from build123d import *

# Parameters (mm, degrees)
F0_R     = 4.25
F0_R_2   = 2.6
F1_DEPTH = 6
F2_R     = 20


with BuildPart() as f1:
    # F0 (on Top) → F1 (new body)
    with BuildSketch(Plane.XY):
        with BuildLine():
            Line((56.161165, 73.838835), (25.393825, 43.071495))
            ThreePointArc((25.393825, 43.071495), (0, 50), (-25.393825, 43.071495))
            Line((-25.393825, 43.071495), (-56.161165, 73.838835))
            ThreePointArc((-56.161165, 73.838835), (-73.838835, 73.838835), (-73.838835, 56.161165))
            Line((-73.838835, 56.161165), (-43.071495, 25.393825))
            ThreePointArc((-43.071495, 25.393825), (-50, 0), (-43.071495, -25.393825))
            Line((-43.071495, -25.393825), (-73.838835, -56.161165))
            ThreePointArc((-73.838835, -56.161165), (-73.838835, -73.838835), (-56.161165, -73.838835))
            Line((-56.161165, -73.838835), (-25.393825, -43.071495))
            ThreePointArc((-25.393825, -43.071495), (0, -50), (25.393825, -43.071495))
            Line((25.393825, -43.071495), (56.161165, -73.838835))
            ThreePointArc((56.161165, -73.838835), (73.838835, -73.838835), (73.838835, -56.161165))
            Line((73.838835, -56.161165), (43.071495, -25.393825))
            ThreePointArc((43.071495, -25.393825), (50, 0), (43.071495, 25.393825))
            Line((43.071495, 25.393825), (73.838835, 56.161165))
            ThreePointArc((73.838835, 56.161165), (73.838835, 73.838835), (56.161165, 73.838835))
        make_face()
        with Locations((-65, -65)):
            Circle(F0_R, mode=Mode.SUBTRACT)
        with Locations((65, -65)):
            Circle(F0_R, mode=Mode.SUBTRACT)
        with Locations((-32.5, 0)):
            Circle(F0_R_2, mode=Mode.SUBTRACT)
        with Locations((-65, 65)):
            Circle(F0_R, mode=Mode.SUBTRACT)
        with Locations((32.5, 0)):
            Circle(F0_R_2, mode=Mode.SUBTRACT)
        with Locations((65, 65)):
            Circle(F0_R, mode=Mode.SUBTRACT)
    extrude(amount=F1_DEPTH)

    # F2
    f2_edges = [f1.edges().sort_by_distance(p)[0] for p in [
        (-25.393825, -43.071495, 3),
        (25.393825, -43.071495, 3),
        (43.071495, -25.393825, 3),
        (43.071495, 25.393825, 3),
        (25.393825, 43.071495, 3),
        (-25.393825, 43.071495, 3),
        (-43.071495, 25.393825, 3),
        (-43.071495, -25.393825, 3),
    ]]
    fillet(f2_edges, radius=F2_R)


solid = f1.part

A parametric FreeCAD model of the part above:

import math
import FreeCAD as App
import Part
import Sketcher

V = App.Vector


def edges_at(feature, points):
    """Names of the edges that pass closest to the given points."""
    edges = feature.Shape.Edges
    near = lambda p: min(range(len(edges)), key=lambda i: edges[i].distToShape(Part.Vertex(*p))[0])
    return sorted({f"Edge{near(p) + 1}" for p in points})

doc = App.newDocument("Part")
body = doc.addObject("PartDesign::Body", "Body")

# Sketch on XY plane
sketch1 = doc.addObject("Sketcher::SketchObject", "Sketch")
body.addObject(sketch1)
sketch1.AttachmentSupport = (doc.XY_Plane, [""])
sketch1.MapMode = "FlatFace"
sketch1.addGeometry(Part.LineSegment(V(56.161165, 73.838835, 0), V(25.393825, 43.071495, 0)), False)
sketch1.addGeometry(Part.ArcOfCircle(Part.Circle(V(0, -0.000002, 0), V(0, 0, 1), 50.000002), math.radians(59.477514), math.radians(120.522486)), False)
sketch1.addGeometry(Part.LineSegment(V(-25.393825, 43.071495, 0), V(-56.161165, 73.838835, 0)), False)
sketch1.addGeometry(Part.ArcOfCircle(Part.Circle(V(-65, 65, 0), V(0, 0, 1), 12.5), math.radians(45), math.radians(225)), False)
sketch1.addGeometry(Part.LineSegment(V(-73.838835, 56.161165, 0), V(-43.071495, 25.393825, 0)), False)
sketch1.addGeometry(Part.ArcOfCircle(Part.Circle(V(0.000002, 0, 0), V(0, 0, 1), 50.000002), math.radians(149.477514), math.radians(210.522486)), False)
sketch1.addGeometry(Part.LineSegment(V(-43.071495, -25.393825, 0), V(-73.838835, -56.161165, 0)), False)
sketch1.addGeometry(Part.ArcOfCircle(Part.Circle(V(-65, -65, 0), V(0, 0, 1), 12.5), math.radians(135), math.radians(315)), False)
sketch1.addGeometry(Part.LineSegment(V(-56.161165, -73.838835, 0), V(-25.393825, -43.071495, 0)), False)
sketch1.addGeometry(Part.ArcOfCircle(Part.Circle(V(0, 0.000002, 0), V(0, 0, 1), 50.000002), math.radians(-120.522486), math.radians(-59.477514)), False)
sketch1.addGeometry(Part.LineSegment(V(25.393825, -43.071495, 0), V(56.161165, -73.838835, 0)), False)
sketch1.addGeometry(Part.ArcOfCircle(Part.Circle(V(65, -65, 0), V(0, 0, 1), 12.5), math.radians(-135), math.radians(45)), False)
sketch1.addGeometry(Part.LineSegment(V(73.838835, -56.161165, 0), V(43.071495, -25.393825, 0)), False)
sketch1.addGeometry(Part.ArcOfCircle(Part.Circle(V(-0.000002, 0, 0), V(0, 0, 1), 50.000002), math.radians(-30.522486), math.radians(30.522486)), False)
sketch1.addGeometry(Part.LineSegment(V(43.071495, 25.393825, 0), V(73.838835, 56.161165, 0)), False)
sketch1.addGeometry(Part.ArcOfCircle(Part.Circle(V(65, 65, 0), V(0, 0, 1), 12.5), math.radians(-45), math.radians(135)), False)
sketch1.addGeometry(Part.Circle(V(-65, -65, 0), V(0, 0, 1), 4.25), False)
sketch1.addGeometry(Part.Circle(V(65, -65, 0), V(0, 0, 1), 4.25), False)
sketch1.addGeometry(Part.Circle(V(-32.5, 0, 0), V(0, 0, 1), 2.6), False)
sketch1.addGeometry(Part.Circle(V(-65, 65, 0), V(0, 0, 1), 4.25), False)
sketch1.addGeometry(Part.Circle(V(32.5, 0, 0), V(0, 0, 1), 2.6), False)
sketch1.addGeometry(Part.Circle(V(65, 65, 0), V(0, 0, 1), 4.25), False)
sketch1.addConstraint(Sketcher.Constraint("Coincident", 0, 2, 1, 1))
sketch1.addConstraint(Sketcher.Constraint("Coincident", 1, 2, 2, 1))
sketch1.addConstraint(Sketcher.Constraint("Tangent", 2, 2, 3, 1))
sketch1.addConstraint(Sketcher.Constraint("Tangent", 3, 2, 4, 1))
sketch1.addConstraint(Sketcher.Constraint("Coincident", 4, 2, 5, 1))
sketch1.addConstraint(Sketcher.Constraint("Coincident", 5, 2, 6, 1))
sketch1.addConstraint(Sketcher.Constraint("Tangent", 6, 2, 7, 1))
sketch1.addConstraint(Sketcher.Constraint("Tangent", 7, 2, 8, 1))
sketch1.addConstraint(Sketcher.Constraint("Coincident", 8, 2, 9, 1))
sketch1.addConstraint(Sketcher.Constraint("Coincident", 9, 2, 10, 1))
sketch1.addConstraint(Sketcher.Constraint("Tangent", 10, 2, 11, 1))
sketch1.addConstraint(Sketcher.Constraint("Tangent", 11, 2, 12, 1))
sketch1.addConstraint(Sketcher.Constraint("Coincident", 12, 2, 13, 1))
sketch1.addConstraint(Sketcher.Constraint("Coincident", 13, 2, 14, 1))
sketch1.addConstraint(Sketcher.Constraint("Tangent", 14, 2, 15, 1))
sketch1.addConstraint(Sketcher.Constraint("Tangent", 15, 2, 0, 1))
sketch1.addConstraint(Sketcher.Constraint("Coincident", 1, 3, -1, 1))
sketch1.addConstraint(Sketcher.Constraint("Coincident", 5, 3, -1, 1))
sketch1.addConstraint(Sketcher.Constraint("Coincident", 9, 3, -1, 1))
sketch1.addConstraint(Sketcher.Constraint("Coincident", 13, 3, -1, 1))
sketch1.addConstraint(Sketcher.Constraint("Coincident", 16, 3, 7, 3))
sketch1.addConstraint(Sketcher.Constraint("Coincident", 17, 3, 11, 3))
sketch1.addConstraint(Sketcher.Constraint("Coincident", 19, 3, 3, 3))
sketch1.addConstraint(Sketcher.Constraint("Coincident", 21, 3, 15, 3))
sketch1.addConstraint(Sketcher.Constraint("Equal", 1, 5))
sketch1.addConstraint(Sketcher.Constraint("Equal", 3, 7))
sketch1.addConstraint(Sketcher.Constraint("Equal", 5, 9))
sketch1.addConstraint(Sketcher.Constraint("Equal", 7, 11))
sketch1.addConstraint(Sketcher.Constraint("Equal", 9, 13))
sketch1.addConstraint(Sketcher.Constraint("Equal", 11, 15))
sketch1.addConstraint(Sketcher.Constraint("Equal", 16, 17))
sketch1.addConstraint(Sketcher.Constraint("Equal", 17, 19))
sketch1.addConstraint(Sketcher.Constraint("Equal", 18, 20))
sketch1.addConstraint(Sketcher.Constraint("Equal", 19, 21))
sketch1.addConstraint(Sketcher.Constraint("Symmetric", 3, 3, 11, 3, -1, 1))
sketch1.addConstraint(Sketcher.Constraint("Symmetric", 7, 3, 15, 3, -1, 1))
sketch1.addConstraint(Sketcher.Constraint("Symmetric", 18, 3, 20, 3, -1, 1))
sketch1.addConstraint(Sketcher.Constraint("Symmetric", 7, 3, 11, 3, -2))
sketch1.addConstraint(Sketcher.Constraint("PointOnObject", 18, 3, -1))
sketch1.addConstraint(Sketcher.Constraint("Perpendicular", 0, 2))
sketch1.addConstraint(Sketcher.Constraint("Parallel", 2, 4))
sketch1.addConstraint(Sketcher.Constraint("Perpendicular", 4, 6))
sketch1.addConstraint(Sketcher.Constraint("Parallel", 6, 8))
sketch1.addConstraint(Sketcher.Constraint("Perpendicular", 8, 10))
sketch1.addConstraint(Sketcher.Constraint("Parallel", 10, 12))
sketch1.addConstraint(Sketcher.Constraint("Perpendicular", 12, 14))
sketch1.addConstraint(Sketcher.Constraint("Horizontal", 0, 2, 1, 2))
sketch1.addConstraint(Sketcher.Constraint("Equal", 2, 4))
sketch1.addConstraint(Sketcher.Constraint("Diameter", 16, 8.5))
sketch1.addConstraint(Sketcher.Constraint("Diameter", 18, 5.2))
sketch1.addConstraint(Sketcher.Constraint("Radius", 3, 12.5))
sketch1.addConstraint(Sketcher.Constraint("DistanceX", 3, 3, -1, 1, 65.0))
sketch1.addConstraint(Sketcher.Constraint("DistanceX", 18, 3, 20, 3, 65.0))
sketch1.addConstraint(Sketcher.Constraint("Radius", 1, 50.000002))
pad1 = doc.addObject("PartDesign::Pad", "Pad")
body.addObject(pad1)
pad1.Profile = sketch1
pad1.Length = 6
doc.recompute()

fillet = doc.addObject("PartDesign::Fillet", "Fillet")
body.addObject(fillet)
fillet.Base = (pad1, edges_at(pad1, [
    (-25.394, -43.071, 3),
    (25.394, -43.071, 3),
    (43.071, -25.394, 3),
    (43.071, 25.394, 3),
    (25.394, 43.071, 3),
    (-25.394, 43.071, 3),
    (-43.071, 25.394, 3),
    (-43.071, -25.394, 3),
]))
fillet.Radius = 20

doc.recompute()
